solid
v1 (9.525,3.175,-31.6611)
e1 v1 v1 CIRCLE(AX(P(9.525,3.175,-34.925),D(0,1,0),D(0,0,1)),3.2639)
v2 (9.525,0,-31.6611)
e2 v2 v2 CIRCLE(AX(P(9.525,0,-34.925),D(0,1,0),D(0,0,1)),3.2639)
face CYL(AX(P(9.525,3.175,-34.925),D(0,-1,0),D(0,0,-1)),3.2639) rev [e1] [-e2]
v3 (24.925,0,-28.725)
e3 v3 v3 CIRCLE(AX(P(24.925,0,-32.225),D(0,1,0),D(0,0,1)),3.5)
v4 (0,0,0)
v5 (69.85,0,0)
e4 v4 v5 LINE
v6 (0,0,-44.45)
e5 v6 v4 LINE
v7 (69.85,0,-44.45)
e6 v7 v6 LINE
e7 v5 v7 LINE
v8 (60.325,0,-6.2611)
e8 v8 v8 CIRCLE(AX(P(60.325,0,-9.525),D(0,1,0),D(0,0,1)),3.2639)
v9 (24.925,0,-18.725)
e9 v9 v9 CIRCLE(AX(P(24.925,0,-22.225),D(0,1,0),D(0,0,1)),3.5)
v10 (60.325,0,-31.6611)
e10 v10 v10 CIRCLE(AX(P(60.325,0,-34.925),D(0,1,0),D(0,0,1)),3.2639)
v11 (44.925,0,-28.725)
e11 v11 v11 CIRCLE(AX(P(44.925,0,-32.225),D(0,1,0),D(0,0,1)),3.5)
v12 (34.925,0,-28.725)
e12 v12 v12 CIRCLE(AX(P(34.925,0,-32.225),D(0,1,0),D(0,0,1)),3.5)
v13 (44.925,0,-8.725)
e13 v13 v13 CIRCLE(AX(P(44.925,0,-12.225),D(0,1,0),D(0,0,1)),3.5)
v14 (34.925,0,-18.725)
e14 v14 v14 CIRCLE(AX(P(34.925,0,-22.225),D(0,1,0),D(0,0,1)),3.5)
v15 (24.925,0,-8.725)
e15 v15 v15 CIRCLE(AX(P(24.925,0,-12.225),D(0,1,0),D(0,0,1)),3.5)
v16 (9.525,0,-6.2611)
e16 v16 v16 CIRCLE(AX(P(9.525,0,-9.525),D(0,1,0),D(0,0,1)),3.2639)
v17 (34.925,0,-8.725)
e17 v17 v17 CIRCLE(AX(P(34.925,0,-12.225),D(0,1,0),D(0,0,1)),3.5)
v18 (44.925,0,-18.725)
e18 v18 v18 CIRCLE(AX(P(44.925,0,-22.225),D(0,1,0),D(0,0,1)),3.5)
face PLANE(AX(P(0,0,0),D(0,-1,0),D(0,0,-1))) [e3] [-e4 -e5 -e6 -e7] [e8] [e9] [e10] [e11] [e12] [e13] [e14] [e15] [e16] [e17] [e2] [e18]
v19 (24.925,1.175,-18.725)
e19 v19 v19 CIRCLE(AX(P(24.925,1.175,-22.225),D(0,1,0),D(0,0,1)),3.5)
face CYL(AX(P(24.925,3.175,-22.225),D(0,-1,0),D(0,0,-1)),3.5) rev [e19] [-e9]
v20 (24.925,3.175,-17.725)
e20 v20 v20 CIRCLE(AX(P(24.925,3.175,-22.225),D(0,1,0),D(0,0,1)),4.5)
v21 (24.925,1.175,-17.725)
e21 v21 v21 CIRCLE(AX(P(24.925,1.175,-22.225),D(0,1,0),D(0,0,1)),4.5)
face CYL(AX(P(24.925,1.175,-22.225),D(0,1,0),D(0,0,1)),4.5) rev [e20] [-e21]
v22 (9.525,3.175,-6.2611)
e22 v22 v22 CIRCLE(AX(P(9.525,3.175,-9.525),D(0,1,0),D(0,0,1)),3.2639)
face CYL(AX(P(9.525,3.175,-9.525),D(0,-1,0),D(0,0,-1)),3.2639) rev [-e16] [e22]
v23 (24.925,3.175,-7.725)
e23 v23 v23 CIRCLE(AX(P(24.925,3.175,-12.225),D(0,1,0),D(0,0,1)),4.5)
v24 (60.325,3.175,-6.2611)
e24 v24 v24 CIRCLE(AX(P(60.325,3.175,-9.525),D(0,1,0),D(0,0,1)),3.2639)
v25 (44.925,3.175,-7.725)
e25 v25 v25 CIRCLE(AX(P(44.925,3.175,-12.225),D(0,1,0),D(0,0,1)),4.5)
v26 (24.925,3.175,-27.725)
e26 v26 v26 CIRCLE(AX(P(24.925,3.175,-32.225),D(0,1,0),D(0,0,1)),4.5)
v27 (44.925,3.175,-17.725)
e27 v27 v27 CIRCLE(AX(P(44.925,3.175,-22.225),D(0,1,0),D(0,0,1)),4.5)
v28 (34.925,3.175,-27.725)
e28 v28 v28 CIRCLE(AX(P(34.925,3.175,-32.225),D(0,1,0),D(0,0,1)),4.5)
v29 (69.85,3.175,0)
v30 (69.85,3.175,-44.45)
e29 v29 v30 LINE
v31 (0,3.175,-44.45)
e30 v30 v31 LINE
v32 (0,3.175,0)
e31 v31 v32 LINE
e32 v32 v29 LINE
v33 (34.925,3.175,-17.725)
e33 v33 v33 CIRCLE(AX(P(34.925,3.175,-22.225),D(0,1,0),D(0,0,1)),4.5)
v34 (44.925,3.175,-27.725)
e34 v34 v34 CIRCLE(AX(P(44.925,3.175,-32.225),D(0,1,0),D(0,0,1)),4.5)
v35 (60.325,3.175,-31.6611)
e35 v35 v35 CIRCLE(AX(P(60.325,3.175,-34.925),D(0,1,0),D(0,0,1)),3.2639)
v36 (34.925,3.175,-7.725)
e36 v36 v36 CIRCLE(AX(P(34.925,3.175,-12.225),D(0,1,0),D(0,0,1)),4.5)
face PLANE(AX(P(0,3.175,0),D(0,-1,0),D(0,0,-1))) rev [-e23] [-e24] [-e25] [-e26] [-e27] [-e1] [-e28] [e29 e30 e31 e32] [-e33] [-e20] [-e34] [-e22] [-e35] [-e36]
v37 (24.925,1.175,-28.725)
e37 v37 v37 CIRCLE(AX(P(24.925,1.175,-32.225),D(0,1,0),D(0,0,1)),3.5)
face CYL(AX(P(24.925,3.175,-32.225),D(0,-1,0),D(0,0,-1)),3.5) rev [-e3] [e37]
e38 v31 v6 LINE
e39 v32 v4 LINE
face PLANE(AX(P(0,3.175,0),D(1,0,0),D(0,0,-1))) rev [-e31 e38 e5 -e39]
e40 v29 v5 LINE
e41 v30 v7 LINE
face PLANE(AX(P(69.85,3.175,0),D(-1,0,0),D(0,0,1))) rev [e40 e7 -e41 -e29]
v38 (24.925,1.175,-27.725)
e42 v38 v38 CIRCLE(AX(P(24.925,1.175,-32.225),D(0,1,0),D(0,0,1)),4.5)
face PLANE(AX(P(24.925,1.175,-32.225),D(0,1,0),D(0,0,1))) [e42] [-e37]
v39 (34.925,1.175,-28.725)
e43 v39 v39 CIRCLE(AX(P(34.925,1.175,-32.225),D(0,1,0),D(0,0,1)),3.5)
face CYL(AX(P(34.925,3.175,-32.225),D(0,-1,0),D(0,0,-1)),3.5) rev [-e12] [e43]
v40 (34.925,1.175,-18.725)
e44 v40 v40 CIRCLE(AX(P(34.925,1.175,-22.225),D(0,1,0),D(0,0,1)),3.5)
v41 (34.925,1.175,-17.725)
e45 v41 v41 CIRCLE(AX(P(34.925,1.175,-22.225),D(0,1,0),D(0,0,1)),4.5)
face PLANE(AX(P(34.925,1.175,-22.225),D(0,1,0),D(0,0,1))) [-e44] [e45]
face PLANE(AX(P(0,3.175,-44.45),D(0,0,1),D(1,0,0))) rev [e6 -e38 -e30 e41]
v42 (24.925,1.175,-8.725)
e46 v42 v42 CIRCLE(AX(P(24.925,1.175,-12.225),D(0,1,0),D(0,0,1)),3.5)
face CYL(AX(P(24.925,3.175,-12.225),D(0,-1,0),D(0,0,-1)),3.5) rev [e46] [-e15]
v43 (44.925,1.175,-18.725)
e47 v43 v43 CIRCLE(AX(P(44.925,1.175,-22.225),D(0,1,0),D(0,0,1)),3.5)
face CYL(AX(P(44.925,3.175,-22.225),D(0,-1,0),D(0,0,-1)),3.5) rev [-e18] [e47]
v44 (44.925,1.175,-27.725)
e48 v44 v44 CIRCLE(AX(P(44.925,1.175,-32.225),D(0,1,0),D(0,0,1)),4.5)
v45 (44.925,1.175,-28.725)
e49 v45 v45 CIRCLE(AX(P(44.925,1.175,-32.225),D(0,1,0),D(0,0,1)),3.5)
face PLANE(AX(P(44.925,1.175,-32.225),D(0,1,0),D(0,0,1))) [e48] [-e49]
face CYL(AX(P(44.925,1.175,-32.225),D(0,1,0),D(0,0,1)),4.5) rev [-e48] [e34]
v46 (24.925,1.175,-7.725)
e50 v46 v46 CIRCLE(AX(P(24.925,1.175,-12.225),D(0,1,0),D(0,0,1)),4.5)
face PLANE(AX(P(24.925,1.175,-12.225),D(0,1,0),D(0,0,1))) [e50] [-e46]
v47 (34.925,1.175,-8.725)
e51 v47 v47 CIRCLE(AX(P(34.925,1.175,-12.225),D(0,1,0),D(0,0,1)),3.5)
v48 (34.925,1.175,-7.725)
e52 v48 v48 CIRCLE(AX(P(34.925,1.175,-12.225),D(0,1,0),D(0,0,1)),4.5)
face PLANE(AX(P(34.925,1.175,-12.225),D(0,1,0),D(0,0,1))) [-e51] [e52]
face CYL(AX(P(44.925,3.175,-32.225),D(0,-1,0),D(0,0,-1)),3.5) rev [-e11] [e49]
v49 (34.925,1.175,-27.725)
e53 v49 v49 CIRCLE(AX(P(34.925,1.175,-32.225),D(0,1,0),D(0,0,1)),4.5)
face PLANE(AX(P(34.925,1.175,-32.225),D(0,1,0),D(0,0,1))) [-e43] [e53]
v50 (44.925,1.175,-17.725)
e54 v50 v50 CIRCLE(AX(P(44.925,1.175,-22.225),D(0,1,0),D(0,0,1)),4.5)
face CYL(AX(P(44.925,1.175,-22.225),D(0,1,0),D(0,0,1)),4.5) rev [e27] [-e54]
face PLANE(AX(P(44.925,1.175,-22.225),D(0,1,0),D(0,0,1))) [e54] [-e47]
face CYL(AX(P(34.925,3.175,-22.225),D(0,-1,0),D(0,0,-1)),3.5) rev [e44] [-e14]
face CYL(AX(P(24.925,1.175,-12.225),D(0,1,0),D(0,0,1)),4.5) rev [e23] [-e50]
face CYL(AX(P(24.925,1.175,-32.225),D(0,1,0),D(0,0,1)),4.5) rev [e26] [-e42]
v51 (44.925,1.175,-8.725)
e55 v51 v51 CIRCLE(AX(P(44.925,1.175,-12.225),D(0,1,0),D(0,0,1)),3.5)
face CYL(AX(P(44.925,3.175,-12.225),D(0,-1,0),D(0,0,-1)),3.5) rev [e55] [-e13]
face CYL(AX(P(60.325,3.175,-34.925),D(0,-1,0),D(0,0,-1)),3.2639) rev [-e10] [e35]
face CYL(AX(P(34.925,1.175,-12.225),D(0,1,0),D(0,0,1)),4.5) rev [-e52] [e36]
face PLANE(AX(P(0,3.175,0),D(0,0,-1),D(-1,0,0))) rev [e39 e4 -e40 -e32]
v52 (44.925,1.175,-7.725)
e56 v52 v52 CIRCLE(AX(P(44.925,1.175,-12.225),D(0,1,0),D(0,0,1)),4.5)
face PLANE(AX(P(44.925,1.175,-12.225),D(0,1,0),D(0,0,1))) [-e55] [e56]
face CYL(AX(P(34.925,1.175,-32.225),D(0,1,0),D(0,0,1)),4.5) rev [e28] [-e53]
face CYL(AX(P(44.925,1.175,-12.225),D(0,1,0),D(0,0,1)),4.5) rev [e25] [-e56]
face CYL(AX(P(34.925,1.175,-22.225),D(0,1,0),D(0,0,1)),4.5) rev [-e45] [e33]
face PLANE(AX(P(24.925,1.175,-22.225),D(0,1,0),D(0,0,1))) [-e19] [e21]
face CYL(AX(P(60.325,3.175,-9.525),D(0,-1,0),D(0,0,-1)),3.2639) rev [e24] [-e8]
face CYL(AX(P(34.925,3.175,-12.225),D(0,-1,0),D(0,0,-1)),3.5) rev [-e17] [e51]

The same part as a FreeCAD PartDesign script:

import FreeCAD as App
import Part
import Sketcher

V = App.Vector
Q = App.Units.Quantity

doc = App.newDocument("Part")
params = doc.addObject("Spreadsheet::Sheet", "Params")
for row, (alias, value) in enumerate([
    ("sketch1_diameter", "0.257 in"),
    ("sketch1_width", "2.75 in"),
    ("sketch1_height", "1.75 in"),
    ("pad1_length", "0.125 in"),
    ("pocket1_length", "2 mm"),
], start=1):
    params.set(f"A{row}", alias)
    params.set(f"B{row}", "=" + value)
    params.setAlias(f"B{row}", alias)

body = doc.addObject("PartDesign::Body", "Body")

sketch1 = body.newObject("Sketcher::SketchObject", "Sketch")
sketch1.AttachmentSupport = (doc.getObject("XZ_Plane"), [""])
sketch1.MapMode = "FlatFace"
sketch1.addGeometry([
    Part.LineSegment(V(0, -44.5, 0), V(0, 0, 0)),
    Part.LineSegment(V(0, 0, 0), V(69.8, 0, 0)),
    Part.LineSegment(V(69.8, 0, 0), V(69.8, -44.5, 0)),
    Part.LineSegment(V(69.8, -44.5, 0), V(0, -44.5, 0)),
    Part.Circle(V(9.5, -9.5, 0), V(0, 0, 1), 3.3),
    Part.Circle(V(24.9, -12.2, 0), V(0, 0, 1), 3.5),
    Part.Circle(V(34.9, -12.2, 0), V(0, 0, 1), 3.5),
    Part.Circle(V(44.9, -12.2, 0), V(0, 0, 1), 3.5),
    Part.Circle(V(60.3, -9.5, 0), V(0, 0, 1), 3.3),
    Part.Circle(V(24.9, -22.2, 0), V(0, 0, 1), 3.5),
    Part.Circle(V(34.9, -22.2, 0), V(0, 0, 1), 3.5),
    Part.Circle(V(9.5, -34.9, 0), V(0, 0, 1), 3.3),
    Part.Circle(V(24.9, -32.2, 0), V(0, 0, 1), 3.5),
    Part.Circle(V(34.9, -32.2, 0), V(0, 0, 1), 3.5),
    Part.Circle(V(44.9, -22.2, 0), V(0, 0, 1), 3.5),
    Part.Circle(V(44.9, -32.2, 0), V(0, 0, 1), 3.5),
    Part.Circle(V(60.3, -34.9, 0), V(0, 0, 1), 3.3),
], False)
sketch1.addConstraint([
    Sketcher.Constraint("Coincident", 0, 2, 1, 1),
    Sketcher.Constraint("Coincident", 1, 2, 2, 1),
    Sketcher.Constraint("Coincident", 2, 2, 3, 1),
    Sketcher.Constraint("Coincident", 3, 2, 0, 1),
    Sketcher.Constraint("Vertical", 0),
    Sketcher.Constraint("Horizontal", 1),
    Sketcher.Constraint("Vertical", 2),
    Sketcher.Constraint("Horizontal", 3),
    Sketcher.Constraint("Coincident", 0, 2, -1, 1),
    Sketcher.Constraint("Equal", 5, 6),
    Sketcher.Constraint("Equal", 6, 7),
    Sketcher.Constraint("Equal", 4, 8),
    Sketcher.Constraint("Equal", 7, 9),
    Sketcher.Constraint("Equal", 9, 10),
    Sketcher.Constraint("Equal", 8, 11),
    Sketcher.Constraint("Equal", 10, 12),
    Sketcher.Constraint("Equal", 12, 13),
    Sketcher.Constraint("Equal", 13, 14),
    Sketcher.Constraint("Equal", 14, 15),
    Sketcher.Constraint("Equal", 11, 16),
    Sketcher.Constraint("Horizontal", 5, 3, 6, 3),
    Sketcher.Constraint("Horizontal", 6, 3, 7, 3),
    Sketcher.Constraint("Horizontal", 4, 3, 8, 3),
    Sketcher.Constraint("Horizontal", 9, 3, 10, 3),
    Sketcher.Constraint("Horizontal", 12, 3, 13, 3),
    Sketcher.Constraint("Horizontal", 10, 3, 14, 3),
    Sketcher.Constraint("Horizontal", 13, 3, 15, 3),
    Sketcher.Constraint("Horizontal", 11, 3, 16, 3),
    Sketcher.Constraint("Vertical", 5, 3, 9, 3),
    Sketcher.Constraint("Vertical", 6, 3, 10, 3),
    Sketcher.Constraint("Vertical", 4, 3, 11, 3),
    Sketcher.Constraint("Vertical", 9, 3, 12, 3),
    Sketcher.Constraint("Vertical", 10, 3, 13, 3),
    Sketcher.Constraint("Vertical", 7, 3, 14, 3),
    Sketcher.Constraint("Vertical", 14, 3, 15, 3),
    Sketcher.Constraint("Vertical", 8, 3, 16, 3),
    Sketcher.Constraint("Diameter", 4, Q("0.257 in")),
    Sketcher.Constraint("DistanceX", 4, 3, 6, 3, Q("1 in")),
    Sketcher.Constraint("DistanceX", 6, 3, 8, 3, Q("1 in")),
    Sketcher.Constraint("DistanceY", 11, 3, 4, 3, Q("1 in")),
    Sketcher.Constraint("DistanceX", 1, 1, 1, 2, Q("2.75 in")),
    Sketcher.Constraint("DistanceY", 0, 1, 0, 2, Q("1.75 in")),
    Sketcher.Constraint("DistanceY", 9, 3, 4, 3, Q("0.5 in")),
    Sketcher.Constraint("Diameter", 5, 7.0),
    Sketcher.Constraint("DistanceX", -1, 1, 4, 3, Q("0.375 in")),
    Sketcher.Constraint("DistanceY", 4, 3, -1, 1, Q("0.375 in")),
    Sketcher.Constraint("DistanceX", -1, 1, 5, 3, 24.925),
    Sketcher.Constraint("DistanceY", 5, 3, -1, 1, 12.225),
    Sketcher.Constraint("DistanceX", -1, 1, 7, 3, 44.925),
    Sketcher.Constraint("DistanceY", 12, 3, -1, 1, 32.225),
])
sketch1.setExpression("Constraints[36]", "Params.sketch1_diameter")
sketch1.setExpression("Constraints[40]", "Params.sketch1_width")
sketch1.setExpression("Constraints[41]", "Params.sketch1_height")
pad1 = body.newObject("PartDesign::Pad", "Pad")
pad1.Profile = sketch1
pad1.setExpression("Length", "Params.pad1_length")
pad1.Reversed = True

sketch2 = body.newObject("Sketcher::SketchObject", "Sketch001")
sketch2.AttachmentSupport = (doc.getObject("XZ_Plane"), [""])
sketch2.MapMode = "FlatFace"
sketch2.AttachmentOffset = App.Placement(V(0, 0, -0.125 * 25.4), App.Rotation())
sketch2.addGeometry([
    Part.Circle(V(44.9, -12.2, 0), V(0, 0, 1), 4.5),
    Part.Circle(V(34.9, -12.2, 0), V(0, 0, 1), 4.5),
    Part.Circle(V(24.9, -12.2, 0), V(0, 0, 1), 4.5),
    Part.Circle(V(34.9, -22.2, 0), V(0, 0, 1), 4.5),
    Part.Circle(V(24.9, -22.2, 0), V(0, 0, 1), 4.5),
    Part.Circle(V(34.9, -32.2, 0), V(0, 0, 1), 4.5),
    Part.Circle(V(24.9, -32.2, 0), V(0, 0, 1), 4.5),
    Part.Circle(V(44.9, -22.2, 0), V(0, 0, 1), 4.5),
    Part.Circle(V(44.9, -32.2, 0), V(0, 0, 1), 4.5),
], False)
sketch2.addConstraint([
    Sketcher.Constraint("Equal", 0, 1),
    Sketcher.Constraint("Equal", 1, 2),
    Sketcher.Constraint("Equal", 2, 3),
    Sketcher.Constraint("Equal", 3, 4),
    Sketcher.Constraint("Equal", 4, 5),
    Sketcher.Constraint("Equal", 5, 6),
    Sketcher.Constraint("Equal", 6, 7),
    Sketcher.Constraint("Equal", 7, 8),
    Sketcher.Constraint("Horizontal", 0, 3, 1, 3),
    Sketcher.Constraint("Horizontal", 1, 3, 2, 3),
    Sketcher.Constraint("Horizontal", 3, 3, 4, 3),
    Sketcher.Constraint("Horizontal", 5, 3, 6, 3),
    Sketcher.Constraint("Horizontal", 4, 3, 7, 3),
    Sketcher.Constraint("Horizontal", 6, 3, 8, 3),
    Sketcher.Constraint("Vertical", 1, 3, 3, 3),
    Sketcher.Constraint("Vertical", 2, 3, 4, 3),
    Sketcher.Constraint("Vertical", 3, 3, 5, 3),
    Sketcher.Constraint("Vertical", 4, 3, 6, 3),
    Sketcher.Constraint("Vertical", 0, 3, 7, 3),
    Sketcher.Constraint("Vertical", 7, 3, 8, 3),
    Sketcher.Constraint("Diameter", 0, 9.0),
    Sketcher.Constraint("DistanceX", -1, 1, 1, 3, Q("1.375 in")),
    Sketcher.Constraint("DistanceY", 3, 3, -1, 1, Q("0.875 in")),
    Sketcher.Constraint("DistanceX", -1, 1, 0, 3, 44.925),
    Sketcher.Constraint("DistanceY", 0, 3, -1, 1, 12.225),
    Sketcher.Constraint("DistanceX", -1, 1, 2, 3, 24.925),
    Sketcher.Constraint("DistanceY", 5, 3, -1, 1, 32.225),
])
pocket1 = body.newObject("PartDesign::Pocket", "Pocket")
pocket1.Profile = sketch2
pocket1.setExpression("Length", "Params.pocket1_length")
pocket1.Reversed = True

doc.recompute()
